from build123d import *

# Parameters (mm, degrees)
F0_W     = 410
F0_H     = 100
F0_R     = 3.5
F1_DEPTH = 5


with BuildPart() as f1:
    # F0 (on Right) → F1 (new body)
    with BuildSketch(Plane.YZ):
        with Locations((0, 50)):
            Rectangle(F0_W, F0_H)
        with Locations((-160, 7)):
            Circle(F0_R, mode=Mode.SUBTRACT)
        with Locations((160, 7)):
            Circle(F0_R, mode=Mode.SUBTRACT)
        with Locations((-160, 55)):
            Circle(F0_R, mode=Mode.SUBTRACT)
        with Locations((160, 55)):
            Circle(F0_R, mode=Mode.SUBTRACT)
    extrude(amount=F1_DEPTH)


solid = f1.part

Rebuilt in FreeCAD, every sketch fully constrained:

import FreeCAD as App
import Part
import Sketcher

V = App.Vector
Q = App.Units.Quantity


def add_polygon(sketch, points):
    """Adds a closed chain of lines whose ends are joined by coincident constraints."""
    first, n = sketch.GeometryCount, len(points)
    for a, b in zip(points, points[1:] + points[:1]):
        sketch.addGeometry(Part.LineSegment(App.Vector(*a, 0), App.Vector(*b, 0)), False)
    for i in range(n):
        sketch.addConstraint(Sketcher.Constraint("Coincident", first + i, 2, first + (i + 1) % n, 1))

doc = App.newDocument("Part")
params = doc.addObject("Spreadsheet::Sheet", "Params")
for row, (alias, value) in enumerate([
    ("sketch1_diameter", "7 mm"),
    ("sketch1_width", "410 mm"),
    ("sketch1_height", "100 mm"),
    ("pad1_length", "5 mm"),
], start=1):
    params.set(f"A{row}", alias)
    params.set(f"B{row}", "=" + value)
    params.setAlias(f"B{row}", alias)

body = doc.addObject("PartDesign::Body", "Body")

sketch1 = doc.addObject("Sketcher::SketchObject", "Sketch")
body.addObject(sketch1)
sketch1.AttachmentSupport = (doc.YZ_Plane, [""])
sketch1.MapMode = "FlatFace"
add_polygon(sketch1, [(-205, 100), (-205, 0), (205, 0), (205, 100)])
sketch1.addGeometry(Part.Circle(V(-160, 7, 0), V(0, 0, 1), 3.5), False)
sketch1.addGeometry(Part.Circle(V(160, 7, 0), V(0, 0, 1), 3.5), False)
sketch1.addGeometry(Part.Circle(V(-160, 55, 0), V(0, 0, 1), 3.5), False)
sketch1.addGeometry(Part.Circle(V(160, 55, 0), V(0, 0, 1), 3.5), False)
sketch1.addConstraint([
    Sketcher.Constraint("Vertical", 0),
    Sketcher.Constraint("Horizontal", 1),
    Sketcher.Constraint("Vertical", 2),
    Sketcher.Constraint("Horizontal", 3),
    Sketcher.Constraint("Equal", 4, 5),
    Sketcher.Constraint("Equal", 5, 6),
    Sketcher.Constraint("Equal", 6, 7),
    Sketcher.Constraint("Symmetric", 0, 2, 1, 2, -1, 1),
    Sketcher.Constraint("Symmetric", 4, 3, 5, 3, -2),
    Sketcher.Constraint("Symmetric", 6, 3, 7, 3, -2),
    Sketcher.Constraint("Vertical", 4, 3, 6, 3),
    Sketcher.Constraint("Diameter", 4, Q("7 mm")),
    Sketcher.Constraint("DistanceX", 1, 1, 1, 2, Q("410 mm")),
    Sketcher.Constraint("DistanceY", 0, 2, 0, 1, Q("100 mm")),
    Sketcher.Constraint("DistanceX", 4, 3, -1, 1, Q("160 mm")),
    Sketcher.Constraint("DistanceY", -1, 1, 4, 3, Q("7 mm")),
    Sketcher.Constraint("DistanceY", -1, 1, 6, 3, Q("55 mm")),
])
sketch1.setExpression("Constraints[15]", "Params.sketch1_diameter")
sketch1.setExpression("Constraints[16]", "Params.sketch1_width")
sketch1.setExpression("Constraints[17]", "Params.sketch1_height")
pad1 = doc.addObject("PartDesign::Pad", "Pad")
body.addObject(pad1)
pad1.Profile = sketch1
pad1.setExpression("Length", "Params.pad1_length")

doc.recompute()
